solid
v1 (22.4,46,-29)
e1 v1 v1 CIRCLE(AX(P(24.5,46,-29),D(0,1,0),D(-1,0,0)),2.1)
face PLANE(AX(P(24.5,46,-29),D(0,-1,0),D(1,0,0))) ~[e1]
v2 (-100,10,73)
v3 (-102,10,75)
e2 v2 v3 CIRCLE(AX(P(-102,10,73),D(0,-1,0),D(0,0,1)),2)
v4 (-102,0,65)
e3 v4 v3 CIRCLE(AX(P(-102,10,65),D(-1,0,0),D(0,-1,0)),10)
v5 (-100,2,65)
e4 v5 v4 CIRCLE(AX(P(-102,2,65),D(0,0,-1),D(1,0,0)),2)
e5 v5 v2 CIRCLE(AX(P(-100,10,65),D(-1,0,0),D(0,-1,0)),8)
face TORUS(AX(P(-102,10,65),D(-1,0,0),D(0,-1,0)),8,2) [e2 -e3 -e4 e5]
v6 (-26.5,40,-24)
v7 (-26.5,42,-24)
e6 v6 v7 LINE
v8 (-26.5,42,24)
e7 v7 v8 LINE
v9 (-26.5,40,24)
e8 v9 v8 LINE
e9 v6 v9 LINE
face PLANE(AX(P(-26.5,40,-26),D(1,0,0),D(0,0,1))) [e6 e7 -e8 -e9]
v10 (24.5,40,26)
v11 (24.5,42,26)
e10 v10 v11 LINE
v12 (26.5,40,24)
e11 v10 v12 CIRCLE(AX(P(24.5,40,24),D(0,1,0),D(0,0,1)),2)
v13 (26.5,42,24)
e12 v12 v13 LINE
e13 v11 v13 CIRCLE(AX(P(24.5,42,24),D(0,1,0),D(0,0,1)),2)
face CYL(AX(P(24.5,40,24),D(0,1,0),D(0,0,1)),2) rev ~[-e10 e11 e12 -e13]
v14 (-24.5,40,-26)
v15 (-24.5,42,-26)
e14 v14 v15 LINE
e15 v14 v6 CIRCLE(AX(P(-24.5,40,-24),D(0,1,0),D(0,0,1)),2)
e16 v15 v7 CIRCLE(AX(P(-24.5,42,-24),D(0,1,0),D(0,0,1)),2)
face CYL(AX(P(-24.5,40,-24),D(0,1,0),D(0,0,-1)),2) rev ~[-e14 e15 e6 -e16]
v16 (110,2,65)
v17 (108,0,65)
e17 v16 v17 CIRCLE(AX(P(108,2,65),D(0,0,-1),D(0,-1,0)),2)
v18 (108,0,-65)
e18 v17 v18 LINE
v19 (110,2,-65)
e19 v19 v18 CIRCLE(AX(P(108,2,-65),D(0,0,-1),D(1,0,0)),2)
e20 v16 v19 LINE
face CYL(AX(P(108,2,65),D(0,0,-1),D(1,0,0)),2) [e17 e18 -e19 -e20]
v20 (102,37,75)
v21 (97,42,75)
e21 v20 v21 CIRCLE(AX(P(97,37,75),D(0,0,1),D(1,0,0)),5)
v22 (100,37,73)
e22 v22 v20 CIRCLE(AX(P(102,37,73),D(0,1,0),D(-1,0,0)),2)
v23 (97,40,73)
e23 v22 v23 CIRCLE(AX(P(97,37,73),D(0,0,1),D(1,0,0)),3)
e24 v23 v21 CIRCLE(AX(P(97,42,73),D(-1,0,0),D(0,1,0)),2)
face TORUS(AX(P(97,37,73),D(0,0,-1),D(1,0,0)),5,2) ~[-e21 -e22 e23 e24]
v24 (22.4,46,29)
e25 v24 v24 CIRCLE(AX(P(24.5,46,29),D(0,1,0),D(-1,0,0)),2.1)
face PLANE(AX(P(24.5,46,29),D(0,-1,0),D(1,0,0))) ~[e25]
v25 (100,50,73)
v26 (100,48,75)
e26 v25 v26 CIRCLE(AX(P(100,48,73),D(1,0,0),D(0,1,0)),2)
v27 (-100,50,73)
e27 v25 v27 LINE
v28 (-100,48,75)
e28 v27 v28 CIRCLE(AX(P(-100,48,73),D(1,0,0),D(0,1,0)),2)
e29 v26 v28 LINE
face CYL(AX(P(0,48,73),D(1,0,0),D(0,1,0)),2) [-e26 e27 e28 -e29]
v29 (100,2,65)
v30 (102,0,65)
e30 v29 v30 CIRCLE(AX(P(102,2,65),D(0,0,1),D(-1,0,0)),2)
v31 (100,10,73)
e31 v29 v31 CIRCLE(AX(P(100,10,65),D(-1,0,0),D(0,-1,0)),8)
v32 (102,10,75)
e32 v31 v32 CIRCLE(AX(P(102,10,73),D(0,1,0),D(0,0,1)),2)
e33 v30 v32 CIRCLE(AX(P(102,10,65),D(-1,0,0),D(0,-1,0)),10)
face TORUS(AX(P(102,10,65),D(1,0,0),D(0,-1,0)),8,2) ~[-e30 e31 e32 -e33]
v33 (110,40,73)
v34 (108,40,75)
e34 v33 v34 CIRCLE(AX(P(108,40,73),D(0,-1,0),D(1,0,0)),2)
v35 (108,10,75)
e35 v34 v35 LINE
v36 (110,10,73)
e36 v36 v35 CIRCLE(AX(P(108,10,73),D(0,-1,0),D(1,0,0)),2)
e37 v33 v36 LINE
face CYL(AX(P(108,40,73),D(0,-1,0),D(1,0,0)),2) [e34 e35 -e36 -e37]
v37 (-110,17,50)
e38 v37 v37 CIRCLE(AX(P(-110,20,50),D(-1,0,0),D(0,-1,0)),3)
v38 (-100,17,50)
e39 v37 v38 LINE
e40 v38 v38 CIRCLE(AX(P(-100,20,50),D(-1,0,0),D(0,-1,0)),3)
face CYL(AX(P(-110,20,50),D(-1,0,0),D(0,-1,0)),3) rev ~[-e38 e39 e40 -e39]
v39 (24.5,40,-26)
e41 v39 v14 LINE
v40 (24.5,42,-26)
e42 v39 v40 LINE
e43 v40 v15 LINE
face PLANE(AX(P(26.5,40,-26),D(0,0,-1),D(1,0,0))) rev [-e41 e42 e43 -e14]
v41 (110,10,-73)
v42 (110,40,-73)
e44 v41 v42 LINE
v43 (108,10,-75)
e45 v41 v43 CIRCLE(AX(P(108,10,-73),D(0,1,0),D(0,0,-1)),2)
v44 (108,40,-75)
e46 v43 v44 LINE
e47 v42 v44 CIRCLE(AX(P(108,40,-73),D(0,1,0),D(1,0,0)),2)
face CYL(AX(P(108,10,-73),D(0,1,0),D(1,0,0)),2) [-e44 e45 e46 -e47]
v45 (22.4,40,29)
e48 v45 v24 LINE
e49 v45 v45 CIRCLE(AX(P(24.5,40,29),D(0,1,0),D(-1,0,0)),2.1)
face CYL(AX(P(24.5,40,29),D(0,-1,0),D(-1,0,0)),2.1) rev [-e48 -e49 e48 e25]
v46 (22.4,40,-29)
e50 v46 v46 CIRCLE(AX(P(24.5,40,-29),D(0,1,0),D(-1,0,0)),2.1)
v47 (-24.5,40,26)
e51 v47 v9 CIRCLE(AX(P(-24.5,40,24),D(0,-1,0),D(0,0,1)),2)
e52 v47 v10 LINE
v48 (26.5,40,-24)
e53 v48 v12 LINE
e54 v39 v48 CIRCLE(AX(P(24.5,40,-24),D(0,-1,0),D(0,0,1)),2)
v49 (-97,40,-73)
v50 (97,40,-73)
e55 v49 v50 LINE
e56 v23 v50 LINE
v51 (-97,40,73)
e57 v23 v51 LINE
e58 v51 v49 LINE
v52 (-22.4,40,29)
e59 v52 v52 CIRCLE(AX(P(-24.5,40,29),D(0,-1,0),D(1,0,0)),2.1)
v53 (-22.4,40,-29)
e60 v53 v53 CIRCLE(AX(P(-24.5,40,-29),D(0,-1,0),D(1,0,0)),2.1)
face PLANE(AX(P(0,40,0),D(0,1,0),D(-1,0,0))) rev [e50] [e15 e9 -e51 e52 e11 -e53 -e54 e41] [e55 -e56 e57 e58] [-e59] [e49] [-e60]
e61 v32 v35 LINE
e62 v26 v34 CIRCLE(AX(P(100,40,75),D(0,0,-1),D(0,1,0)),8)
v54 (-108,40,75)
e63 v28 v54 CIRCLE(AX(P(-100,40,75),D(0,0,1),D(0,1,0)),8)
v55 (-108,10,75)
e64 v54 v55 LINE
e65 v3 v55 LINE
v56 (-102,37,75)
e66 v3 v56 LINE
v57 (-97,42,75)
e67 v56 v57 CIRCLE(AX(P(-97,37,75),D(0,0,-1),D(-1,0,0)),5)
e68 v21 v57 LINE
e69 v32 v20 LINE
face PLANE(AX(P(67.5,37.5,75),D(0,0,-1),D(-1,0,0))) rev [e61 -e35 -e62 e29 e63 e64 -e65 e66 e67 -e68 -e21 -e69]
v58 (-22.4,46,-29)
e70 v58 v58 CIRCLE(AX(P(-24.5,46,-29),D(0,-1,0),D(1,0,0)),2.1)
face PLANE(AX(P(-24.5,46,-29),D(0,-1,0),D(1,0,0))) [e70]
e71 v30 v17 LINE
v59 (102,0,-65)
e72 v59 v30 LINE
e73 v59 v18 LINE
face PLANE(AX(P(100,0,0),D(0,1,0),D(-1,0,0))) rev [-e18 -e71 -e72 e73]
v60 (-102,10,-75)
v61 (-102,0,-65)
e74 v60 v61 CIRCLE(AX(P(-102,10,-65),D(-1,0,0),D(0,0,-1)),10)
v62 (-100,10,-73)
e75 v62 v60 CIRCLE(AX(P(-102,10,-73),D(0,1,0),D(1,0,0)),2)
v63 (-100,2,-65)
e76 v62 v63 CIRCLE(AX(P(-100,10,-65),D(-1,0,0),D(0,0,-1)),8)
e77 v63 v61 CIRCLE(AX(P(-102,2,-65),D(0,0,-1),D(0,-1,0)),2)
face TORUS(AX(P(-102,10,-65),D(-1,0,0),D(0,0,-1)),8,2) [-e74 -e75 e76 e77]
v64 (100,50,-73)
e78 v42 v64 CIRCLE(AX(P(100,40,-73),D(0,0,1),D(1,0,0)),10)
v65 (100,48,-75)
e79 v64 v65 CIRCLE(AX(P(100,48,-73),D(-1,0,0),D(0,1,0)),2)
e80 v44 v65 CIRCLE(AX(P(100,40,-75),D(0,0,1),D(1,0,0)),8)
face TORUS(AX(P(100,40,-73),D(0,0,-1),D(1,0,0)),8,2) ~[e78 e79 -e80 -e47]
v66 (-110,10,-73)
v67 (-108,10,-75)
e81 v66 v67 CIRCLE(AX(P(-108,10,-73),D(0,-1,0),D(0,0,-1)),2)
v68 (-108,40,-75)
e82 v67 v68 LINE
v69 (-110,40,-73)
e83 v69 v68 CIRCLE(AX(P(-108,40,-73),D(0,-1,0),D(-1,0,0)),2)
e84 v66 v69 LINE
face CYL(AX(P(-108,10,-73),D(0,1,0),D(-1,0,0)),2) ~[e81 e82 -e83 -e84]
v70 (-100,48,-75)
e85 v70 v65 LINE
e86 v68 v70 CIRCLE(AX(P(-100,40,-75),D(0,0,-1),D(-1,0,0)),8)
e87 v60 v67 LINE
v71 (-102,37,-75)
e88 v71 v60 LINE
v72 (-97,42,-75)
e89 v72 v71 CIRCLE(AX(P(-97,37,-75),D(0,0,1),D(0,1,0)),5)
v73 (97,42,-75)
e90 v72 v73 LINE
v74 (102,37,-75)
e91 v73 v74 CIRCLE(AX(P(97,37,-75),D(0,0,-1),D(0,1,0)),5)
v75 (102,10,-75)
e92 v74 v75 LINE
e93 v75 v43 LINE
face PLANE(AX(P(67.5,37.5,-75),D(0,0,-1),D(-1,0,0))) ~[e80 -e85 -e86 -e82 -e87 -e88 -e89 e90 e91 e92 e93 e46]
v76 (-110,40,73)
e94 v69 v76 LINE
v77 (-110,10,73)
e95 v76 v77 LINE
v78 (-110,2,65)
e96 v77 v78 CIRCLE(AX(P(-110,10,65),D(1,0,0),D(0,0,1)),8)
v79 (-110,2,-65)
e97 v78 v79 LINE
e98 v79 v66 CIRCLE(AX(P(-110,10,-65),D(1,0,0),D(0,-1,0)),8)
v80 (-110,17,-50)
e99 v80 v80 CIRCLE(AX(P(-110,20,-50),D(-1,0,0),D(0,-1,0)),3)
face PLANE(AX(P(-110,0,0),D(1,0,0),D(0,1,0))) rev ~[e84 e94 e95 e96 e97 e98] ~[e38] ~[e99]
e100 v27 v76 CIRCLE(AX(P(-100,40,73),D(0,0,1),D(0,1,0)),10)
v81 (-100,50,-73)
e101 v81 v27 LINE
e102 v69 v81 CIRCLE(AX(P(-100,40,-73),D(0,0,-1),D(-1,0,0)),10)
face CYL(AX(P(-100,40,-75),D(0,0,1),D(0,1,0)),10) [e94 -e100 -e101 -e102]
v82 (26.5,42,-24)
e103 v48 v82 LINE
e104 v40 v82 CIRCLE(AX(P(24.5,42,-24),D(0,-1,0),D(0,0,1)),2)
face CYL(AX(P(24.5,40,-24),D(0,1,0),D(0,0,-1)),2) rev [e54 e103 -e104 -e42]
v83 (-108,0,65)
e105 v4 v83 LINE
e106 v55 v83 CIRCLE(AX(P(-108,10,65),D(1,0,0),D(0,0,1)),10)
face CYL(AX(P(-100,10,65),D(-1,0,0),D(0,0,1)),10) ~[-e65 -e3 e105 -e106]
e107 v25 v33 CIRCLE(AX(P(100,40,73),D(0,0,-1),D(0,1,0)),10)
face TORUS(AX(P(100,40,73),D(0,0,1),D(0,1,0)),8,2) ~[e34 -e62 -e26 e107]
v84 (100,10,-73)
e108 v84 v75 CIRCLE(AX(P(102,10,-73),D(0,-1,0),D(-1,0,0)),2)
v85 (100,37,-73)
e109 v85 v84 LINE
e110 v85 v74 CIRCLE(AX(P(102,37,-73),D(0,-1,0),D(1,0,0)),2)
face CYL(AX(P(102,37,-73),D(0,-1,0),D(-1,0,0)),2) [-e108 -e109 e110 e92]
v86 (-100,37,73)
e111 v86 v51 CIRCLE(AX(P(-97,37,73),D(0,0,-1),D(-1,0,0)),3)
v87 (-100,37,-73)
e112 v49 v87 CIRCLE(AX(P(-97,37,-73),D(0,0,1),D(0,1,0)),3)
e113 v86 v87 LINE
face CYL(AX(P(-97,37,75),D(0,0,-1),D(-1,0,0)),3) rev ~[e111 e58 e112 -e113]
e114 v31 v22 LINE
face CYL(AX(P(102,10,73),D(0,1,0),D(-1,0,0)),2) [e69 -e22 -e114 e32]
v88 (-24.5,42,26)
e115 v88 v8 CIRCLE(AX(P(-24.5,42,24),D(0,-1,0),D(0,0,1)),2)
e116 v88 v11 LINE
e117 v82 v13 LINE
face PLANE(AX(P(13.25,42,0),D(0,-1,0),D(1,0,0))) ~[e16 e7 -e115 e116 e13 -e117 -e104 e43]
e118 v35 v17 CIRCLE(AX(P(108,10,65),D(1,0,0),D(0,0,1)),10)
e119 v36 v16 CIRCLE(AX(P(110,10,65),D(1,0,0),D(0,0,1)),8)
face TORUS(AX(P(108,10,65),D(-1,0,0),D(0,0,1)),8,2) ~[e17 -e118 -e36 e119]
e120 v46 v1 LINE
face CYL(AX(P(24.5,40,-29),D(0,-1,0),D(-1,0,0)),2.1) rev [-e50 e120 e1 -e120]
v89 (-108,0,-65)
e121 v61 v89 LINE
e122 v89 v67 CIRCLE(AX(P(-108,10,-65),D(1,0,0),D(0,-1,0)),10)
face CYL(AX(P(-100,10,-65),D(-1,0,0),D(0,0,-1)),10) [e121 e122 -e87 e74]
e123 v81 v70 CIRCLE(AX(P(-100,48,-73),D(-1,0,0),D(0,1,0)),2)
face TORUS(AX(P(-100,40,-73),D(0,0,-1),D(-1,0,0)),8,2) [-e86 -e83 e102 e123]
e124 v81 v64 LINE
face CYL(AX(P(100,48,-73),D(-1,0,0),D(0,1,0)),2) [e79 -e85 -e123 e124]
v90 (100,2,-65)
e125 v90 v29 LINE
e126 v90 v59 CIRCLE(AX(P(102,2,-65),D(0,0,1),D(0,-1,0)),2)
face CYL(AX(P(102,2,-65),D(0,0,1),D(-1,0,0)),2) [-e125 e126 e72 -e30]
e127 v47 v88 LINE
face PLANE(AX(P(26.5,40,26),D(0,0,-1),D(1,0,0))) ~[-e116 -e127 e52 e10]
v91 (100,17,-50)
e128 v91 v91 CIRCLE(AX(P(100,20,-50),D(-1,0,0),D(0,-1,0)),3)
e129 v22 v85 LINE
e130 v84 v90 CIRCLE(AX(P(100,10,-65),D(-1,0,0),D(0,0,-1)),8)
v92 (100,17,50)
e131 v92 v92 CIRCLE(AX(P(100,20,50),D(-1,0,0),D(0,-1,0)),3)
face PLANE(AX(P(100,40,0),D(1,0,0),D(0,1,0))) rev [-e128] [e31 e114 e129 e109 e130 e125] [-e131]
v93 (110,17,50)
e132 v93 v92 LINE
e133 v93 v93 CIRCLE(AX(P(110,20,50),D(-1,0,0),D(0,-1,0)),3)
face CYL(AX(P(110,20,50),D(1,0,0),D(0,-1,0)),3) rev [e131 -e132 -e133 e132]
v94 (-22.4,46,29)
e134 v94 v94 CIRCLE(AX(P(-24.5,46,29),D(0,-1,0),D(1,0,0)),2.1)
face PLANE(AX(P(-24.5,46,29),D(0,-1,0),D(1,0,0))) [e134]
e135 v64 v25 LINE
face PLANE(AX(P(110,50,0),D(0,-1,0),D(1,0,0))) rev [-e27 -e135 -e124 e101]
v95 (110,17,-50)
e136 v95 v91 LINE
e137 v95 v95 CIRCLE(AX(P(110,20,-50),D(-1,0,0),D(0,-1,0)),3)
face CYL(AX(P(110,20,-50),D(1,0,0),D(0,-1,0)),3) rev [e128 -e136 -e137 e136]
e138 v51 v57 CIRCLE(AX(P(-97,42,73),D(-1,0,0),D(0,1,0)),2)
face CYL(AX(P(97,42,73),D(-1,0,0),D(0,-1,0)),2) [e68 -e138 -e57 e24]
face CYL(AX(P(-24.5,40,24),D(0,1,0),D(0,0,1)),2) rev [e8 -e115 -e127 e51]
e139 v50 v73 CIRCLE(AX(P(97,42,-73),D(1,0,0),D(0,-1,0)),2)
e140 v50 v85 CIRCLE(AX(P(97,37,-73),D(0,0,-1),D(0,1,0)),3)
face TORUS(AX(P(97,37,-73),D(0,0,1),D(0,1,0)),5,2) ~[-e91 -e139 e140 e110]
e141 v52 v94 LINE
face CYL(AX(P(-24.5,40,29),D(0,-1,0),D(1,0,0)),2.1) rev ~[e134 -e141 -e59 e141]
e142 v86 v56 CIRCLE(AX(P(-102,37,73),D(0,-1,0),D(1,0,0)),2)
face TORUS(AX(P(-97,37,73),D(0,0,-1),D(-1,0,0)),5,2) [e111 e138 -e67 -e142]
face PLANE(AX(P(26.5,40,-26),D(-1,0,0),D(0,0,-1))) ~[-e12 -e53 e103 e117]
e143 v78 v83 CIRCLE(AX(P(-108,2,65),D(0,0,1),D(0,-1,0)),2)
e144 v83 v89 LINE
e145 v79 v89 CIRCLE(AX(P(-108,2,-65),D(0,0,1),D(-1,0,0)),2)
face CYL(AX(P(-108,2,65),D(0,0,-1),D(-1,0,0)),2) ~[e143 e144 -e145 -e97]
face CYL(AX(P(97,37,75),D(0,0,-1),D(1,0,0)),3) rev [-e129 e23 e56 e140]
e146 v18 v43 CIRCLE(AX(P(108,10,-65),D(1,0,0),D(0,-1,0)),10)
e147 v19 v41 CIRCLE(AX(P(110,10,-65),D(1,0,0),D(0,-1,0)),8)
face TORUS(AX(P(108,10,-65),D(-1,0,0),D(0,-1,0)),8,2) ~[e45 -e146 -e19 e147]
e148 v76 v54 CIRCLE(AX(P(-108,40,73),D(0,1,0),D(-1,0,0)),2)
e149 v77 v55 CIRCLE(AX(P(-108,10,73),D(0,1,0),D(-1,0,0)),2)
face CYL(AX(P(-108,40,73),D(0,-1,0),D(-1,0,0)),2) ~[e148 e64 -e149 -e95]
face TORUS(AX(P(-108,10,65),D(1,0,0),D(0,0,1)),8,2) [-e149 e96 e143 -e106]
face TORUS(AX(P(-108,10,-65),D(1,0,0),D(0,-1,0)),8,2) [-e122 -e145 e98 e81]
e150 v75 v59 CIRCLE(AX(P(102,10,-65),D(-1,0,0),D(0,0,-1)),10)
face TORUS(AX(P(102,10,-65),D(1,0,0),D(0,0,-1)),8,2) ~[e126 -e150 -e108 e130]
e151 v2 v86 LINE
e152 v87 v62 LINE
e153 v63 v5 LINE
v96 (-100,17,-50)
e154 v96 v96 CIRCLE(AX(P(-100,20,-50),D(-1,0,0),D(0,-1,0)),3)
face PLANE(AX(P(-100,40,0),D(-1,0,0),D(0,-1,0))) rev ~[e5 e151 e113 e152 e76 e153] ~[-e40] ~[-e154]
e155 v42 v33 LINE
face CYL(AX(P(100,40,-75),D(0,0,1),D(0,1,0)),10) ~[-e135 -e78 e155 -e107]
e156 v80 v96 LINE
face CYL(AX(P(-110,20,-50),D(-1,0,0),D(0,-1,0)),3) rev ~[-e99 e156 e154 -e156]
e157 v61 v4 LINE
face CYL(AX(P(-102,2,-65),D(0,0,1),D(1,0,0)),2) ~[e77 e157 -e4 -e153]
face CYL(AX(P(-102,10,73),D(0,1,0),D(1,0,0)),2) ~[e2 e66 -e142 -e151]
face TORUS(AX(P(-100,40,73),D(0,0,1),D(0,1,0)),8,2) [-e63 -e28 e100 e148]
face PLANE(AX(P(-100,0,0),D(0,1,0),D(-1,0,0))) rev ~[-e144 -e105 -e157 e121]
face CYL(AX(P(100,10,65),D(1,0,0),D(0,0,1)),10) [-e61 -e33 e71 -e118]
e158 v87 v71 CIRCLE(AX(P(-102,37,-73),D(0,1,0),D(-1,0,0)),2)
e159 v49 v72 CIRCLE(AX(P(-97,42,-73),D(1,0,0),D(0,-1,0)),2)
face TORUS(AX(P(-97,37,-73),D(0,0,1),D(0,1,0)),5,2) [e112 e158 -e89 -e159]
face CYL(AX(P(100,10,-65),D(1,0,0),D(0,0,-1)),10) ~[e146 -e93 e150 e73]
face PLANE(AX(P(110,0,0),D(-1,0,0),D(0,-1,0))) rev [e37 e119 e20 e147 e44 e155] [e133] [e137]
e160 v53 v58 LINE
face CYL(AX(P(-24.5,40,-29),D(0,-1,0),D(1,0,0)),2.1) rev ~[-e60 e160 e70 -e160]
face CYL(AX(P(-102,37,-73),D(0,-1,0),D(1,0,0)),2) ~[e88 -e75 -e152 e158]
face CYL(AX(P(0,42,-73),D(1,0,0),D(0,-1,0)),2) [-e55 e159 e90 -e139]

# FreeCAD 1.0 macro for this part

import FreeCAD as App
import Part
import Sketcher
from FreeCAD import Vector
Q = App.Units.Quantity


def edges_at(feature, points):
    """Names of the edges that pass closest to the given points."""
    edges = feature.Shape.Edges
    near = lambda p: min(range(len(edges)), key=lambda i: edges[i].distToShape(Part.Vertex(*p))[0])
    return sorted({f"Edge{near(p) + 1}" for p in points})

doc = App.newDocument("Part")
params = doc.addObject("Spreadsheet::Sheet", "Params")
for row, (alias, value) in enumerate([
    ("sketch1_width", "100 mm"),
    ("sketch1_width2", "110 mm"),
    ("sketch1_height", "50 mm"),
    ("pad1_length", "150 mm"),
    ("sketch2_diameter", "6 mm"),
    ("sketch3_diameter", "4.2 mm"),
    ("pocket2_length", "6 mm"),
    ("sketch4_height", "52 mm"),
    ("sketch4_width", "26.5 mm"),
    ("pocket3_length", "2 mm"),
    ("fillet_radius", "10 mm"),
    ("fillet2_radius", "3 mm"),
    ("fillet3_radius", "2 mm"),
    ("fillet4_radius", "2 mm"),
], start=1):
    params.set(f"A{row}", alias)
    params.set(f"B{row}", "=" + value)
    params.setAlias(f"B{row}", alias)

body = doc.addObject("PartDesign::Body", "Body")

sketch1 = body.newObject("Sketcher::SketchObject", "Sketch")
sketch1.AttachmentSupport = (doc.getObject("XY_Plane"), [""])
sketch1.MapMode = "FlatFace"
sketch1.addGeometry([
    Part.LineSegment(Vector(-100, 40, 0), Vector(0, 40, 0)),
    Part.LineSegment(Vector(0, 40, 0), Vector(0, 50, 0)),
    Part.LineSegment(Vector(0, 50, 0), Vector(-110, 50, 0)),
    Part.LineSegment(Vector(-110, 50, 0), Vector(-110, 0, 0)),
    Part.LineSegment(Vector(-110, 0, 0), Vector(-100, 0, 0)),
    Part.LineSegment(Vector(-100, 0, 0), Vector(-100, 40, 0)),
], False)
sketch1.addConstraint([
    Sketcher.Constraint("Coincident", 0, 2, 1, 1),
    Sketcher.Constraint("Coincident", 1, 2, 2, 1),
    Sketcher.Constraint("Coincident", 2, 2, 3, 1),
    Sketcher.Constraint("Coincident", 3, 2, 4, 1),
    Sketcher.Constraint("Coincident", 4, 2, 5, 1),
    Sketcher.Constraint("Coincident", 5, 2, 0, 1),
    Sketcher.Constraint("Horizontal", 0),
    Sketcher.Constraint("Vertical", 1),
    Sketcher.Constraint("Horizontal", 2),
    Sketcher.Constraint("Vertical", 3),
    Sketcher.Constraint("Horizontal", 4),
    Sketcher.Constraint("Vertical", 5),
    Sketcher.Constraint("PointOnObject", 0, 2, -2),
    Sketcher.Constraint("PointOnObject", 3, 2, -1),
    Sketcher.Constraint("Equal", 4, 1),
    Sketcher.Constraint("DistanceX", 0, 1, 0, 2, Q("100 mm")),
    Sketcher.Constraint("DistanceX", 2, 2, 2, 1, Q("110 mm")),
    Sketcher.Constraint("DistanceY", 3, 2, 3, 1, Q("50 mm")),
])
sketch1.setExpression("Constraints[15]", "Params.sketch1_width")
sketch1.setExpression("Constraints[16]", "Params.sketch1_width2")
sketch1.setExpression("Constraints[17]", "Params.sketch1_height")
pad1 = body.newObject("PartDesign::Pad", "Pad")
pad1.Profile = sketch1
pad1.setExpression("Length", "Params.pad1_length")
pad1.Midplane = True

sketch2 = body.newObject("Sketcher::SketchObject", "Sketch001")
sketch2.AttachmentSupport = (doc.getObject("YZ_Plane"), [""])
sketch2.MapMode = "FlatFace"
sketch2.AttachmentOffset = App.Placement(Vector(0, 0, -110), App.Rotation())
sketch2.addGeometry([
    Part.Circle(Vector(20, -50, 0), Vector(0, 0, 1), 3),
    Part.Circle(Vector(20, 50, 0), Vector(0, 0, 1), 3),
], False)
sketch2.addConstraint([
    Sketcher.Constraint("Equal", 0, 1),
    Sketcher.Constraint("Symmetric", 0, 3, 1, 3, -1),
    Sketcher.Constraint("Diameter", 0, Q("6 mm")),
    Sketcher.Constraint("DistanceX", -1, 1, 0, 3, Q("20 mm")),
    Sketcher.Constraint("DistanceY", 0, 3, -1, 1, Q("50 mm")),
])
sketch2.setExpression("Constraints[2]", "Params.sketch2_diameter")
pocket1 = body.newObject("PartDesign::Pocket", "Pocket")
pocket1.Profile = sketch2
pocket1.Type = "ThroughAll"
pocket1.Reversed = True

sketch3 = body.newObject("Sketcher::SketchObject", "Sketch002")
sketch3.AttachmentSupport = (doc.getObject("XZ_Plane"), [""])
sketch3.MapMode = "FlatFace"
sketch3.AttachmentOffset = App.Placement(Vector(0, 0, -40), App.Rotation())
sketch3.addGeometry([
    Part.Circle(Vector(-24.5, 29, 0), Vector(0, 0, 1), 2.1),
    Part.Circle(Vector(-24.5, -29, 0), Vector(0, 0, 1), 2.1),
], False)
sketch3.addConstraint([
    Sketcher.Constraint("Equal", 0, 1),
    Sketcher.Constraint("Symmetric", 0, 3, 1, 3, -1),
    Sketcher.Constraint("Diameter", 0, Q("4.2 mm")),
    Sketcher.Constraint("DistanceY", -1, 1, 0, 3, Q("29 mm")),
    Sketcher.Constraint("DistanceX", 0, 3, -1, 1, Q("24.5 mm")),
])
sketch3.setExpression("Constraints[2]", "Params.sketch3_diameter")
pocket2 = body.newObject("PartDesign::Pocket", "Pocket001")
pocket2.Profile = sketch3
pocket2.setExpression("Length", "Params.pocket2_length")

sketch4 = body.newObject("Sketcher::SketchObject", "Sketch003")
sketch4.AttachmentSupport = (doc.getObject("XZ_Plane"), [""])
sketch4.MapMode = "FlatFace"
sketch4.AttachmentOffset = App.Placement(Vector(0, 0, -40), App.Rotation())
sketch4.addGeometry([
    Part.LineSegment(Vector(-26.5, 26, 0), Vector(-26.5, -26, 0)),
    Part.LineSegment(Vector(-26.5, -26, 0), Vector(0, -26, 0)),
    Part.LineSegment(Vector(0, -26, 0), Vector(0, 26, 0)),
    Part.LineSegment(Vector(0, 26, 0), Vector(-26.5, 26, 0)),
], False)
sketch4.addConstraint([
    Sketcher.Constraint("Coincident", 0, 2, 1, 1),
    Sketcher.Constraint("Coincident", 1, 2, 2, 1),
    Sketcher.Constraint("Coincident", 2, 2, 3, 1),
    Sketcher.Constraint("Coincident", 3, 2, 0, 1),
    Sketcher.Constraint("Vertical", 0),
    Sketcher.Constraint("Horizontal", 1),
    Sketcher.Constraint("Vertical", 2),
    Sketcher.Constraint("Horizontal", 3),
    Sketcher.Constraint("Symmetric", 1, 2, 2, 2, -1, 1),
    Sketcher.Constraint("DistanceY", 0, 2, 0, 1, Q("52 mm")),
    Sketcher.Constraint("DistanceX", 1, 1, 1, 2, Q("26.5 mm")),
])
sketch4.setExpression("Constraints[9]", "Params.sketch4_height")
sketch4.setExpression("Constraints[10]", "Params.sketch4_width")
pocket3 = body.newObject("PartDesign::Pocket", "Pocket002")
pocket3.Profile = sketch4
pocket3.setExpression("Length", "Params.pocket3_length")
doc.recompute()

fillet = body.newObject("PartDesign::Fillet", "Fillet")
fillet.Base = (pocket3, edges_at(pocket3, [(-105, 0, -75), (-105, 0, 75), (-110, 50, 0)]))
fillet.setExpression("Radius", "Params.fillet_radius")
doc.recompute()

fillet2 = body.newObject("PartDesign::Fillet", "Fillet001")
fillet2.Base = (fillet, edges_at(fillet, [(-100, 40, 0)]))
fillet2.setExpression("Radius", "Params.fillet2_radius")
doc.recompute()

fillet3 = body.newObject("PartDesign::Fillet", "Fillet002")
fillet3.Base = (fillet2, edges_at(fillet2, [(-110, 25, -75), (-100, 23.5, -75)]))
fillet3.setExpression("Radius", "Params.fillet3_radius")
doc.recompute()

fillet4 = body.newObject("PartDesign::Fillet", "Fillet003")
fillet4.Base = (fillet3, edges_at(fillet3, [(-26.5, 41, 26), (-26.5, 41, -26)]))
fillet4.setExpression("Radius", "Params.fillet4_radius")
body2 = doc.addObject("PartDesign::Body", "Body001")
doc.recompute()

body2.BaseFeature = body
doc.recompute()

mirroring = doc.addObject("Part::Mirroring", "Mirroring")
mirroring.Source = body
mirroring.Base = Vector(0, 0, 0)
mirroring.Normal = Vector(1, 0, 0)
body3 = doc.addObject("PartDesign::Body", "Body002")
body3.BaseFeature = mirroring
boolean = body2.newObject("PartDesign::Boolean", "Boolean")
boolean.Type = "Fuse"
boolean.addObjects([body3])
doc.recompute()
mirroring.Visibility = False

doc.recompute()
